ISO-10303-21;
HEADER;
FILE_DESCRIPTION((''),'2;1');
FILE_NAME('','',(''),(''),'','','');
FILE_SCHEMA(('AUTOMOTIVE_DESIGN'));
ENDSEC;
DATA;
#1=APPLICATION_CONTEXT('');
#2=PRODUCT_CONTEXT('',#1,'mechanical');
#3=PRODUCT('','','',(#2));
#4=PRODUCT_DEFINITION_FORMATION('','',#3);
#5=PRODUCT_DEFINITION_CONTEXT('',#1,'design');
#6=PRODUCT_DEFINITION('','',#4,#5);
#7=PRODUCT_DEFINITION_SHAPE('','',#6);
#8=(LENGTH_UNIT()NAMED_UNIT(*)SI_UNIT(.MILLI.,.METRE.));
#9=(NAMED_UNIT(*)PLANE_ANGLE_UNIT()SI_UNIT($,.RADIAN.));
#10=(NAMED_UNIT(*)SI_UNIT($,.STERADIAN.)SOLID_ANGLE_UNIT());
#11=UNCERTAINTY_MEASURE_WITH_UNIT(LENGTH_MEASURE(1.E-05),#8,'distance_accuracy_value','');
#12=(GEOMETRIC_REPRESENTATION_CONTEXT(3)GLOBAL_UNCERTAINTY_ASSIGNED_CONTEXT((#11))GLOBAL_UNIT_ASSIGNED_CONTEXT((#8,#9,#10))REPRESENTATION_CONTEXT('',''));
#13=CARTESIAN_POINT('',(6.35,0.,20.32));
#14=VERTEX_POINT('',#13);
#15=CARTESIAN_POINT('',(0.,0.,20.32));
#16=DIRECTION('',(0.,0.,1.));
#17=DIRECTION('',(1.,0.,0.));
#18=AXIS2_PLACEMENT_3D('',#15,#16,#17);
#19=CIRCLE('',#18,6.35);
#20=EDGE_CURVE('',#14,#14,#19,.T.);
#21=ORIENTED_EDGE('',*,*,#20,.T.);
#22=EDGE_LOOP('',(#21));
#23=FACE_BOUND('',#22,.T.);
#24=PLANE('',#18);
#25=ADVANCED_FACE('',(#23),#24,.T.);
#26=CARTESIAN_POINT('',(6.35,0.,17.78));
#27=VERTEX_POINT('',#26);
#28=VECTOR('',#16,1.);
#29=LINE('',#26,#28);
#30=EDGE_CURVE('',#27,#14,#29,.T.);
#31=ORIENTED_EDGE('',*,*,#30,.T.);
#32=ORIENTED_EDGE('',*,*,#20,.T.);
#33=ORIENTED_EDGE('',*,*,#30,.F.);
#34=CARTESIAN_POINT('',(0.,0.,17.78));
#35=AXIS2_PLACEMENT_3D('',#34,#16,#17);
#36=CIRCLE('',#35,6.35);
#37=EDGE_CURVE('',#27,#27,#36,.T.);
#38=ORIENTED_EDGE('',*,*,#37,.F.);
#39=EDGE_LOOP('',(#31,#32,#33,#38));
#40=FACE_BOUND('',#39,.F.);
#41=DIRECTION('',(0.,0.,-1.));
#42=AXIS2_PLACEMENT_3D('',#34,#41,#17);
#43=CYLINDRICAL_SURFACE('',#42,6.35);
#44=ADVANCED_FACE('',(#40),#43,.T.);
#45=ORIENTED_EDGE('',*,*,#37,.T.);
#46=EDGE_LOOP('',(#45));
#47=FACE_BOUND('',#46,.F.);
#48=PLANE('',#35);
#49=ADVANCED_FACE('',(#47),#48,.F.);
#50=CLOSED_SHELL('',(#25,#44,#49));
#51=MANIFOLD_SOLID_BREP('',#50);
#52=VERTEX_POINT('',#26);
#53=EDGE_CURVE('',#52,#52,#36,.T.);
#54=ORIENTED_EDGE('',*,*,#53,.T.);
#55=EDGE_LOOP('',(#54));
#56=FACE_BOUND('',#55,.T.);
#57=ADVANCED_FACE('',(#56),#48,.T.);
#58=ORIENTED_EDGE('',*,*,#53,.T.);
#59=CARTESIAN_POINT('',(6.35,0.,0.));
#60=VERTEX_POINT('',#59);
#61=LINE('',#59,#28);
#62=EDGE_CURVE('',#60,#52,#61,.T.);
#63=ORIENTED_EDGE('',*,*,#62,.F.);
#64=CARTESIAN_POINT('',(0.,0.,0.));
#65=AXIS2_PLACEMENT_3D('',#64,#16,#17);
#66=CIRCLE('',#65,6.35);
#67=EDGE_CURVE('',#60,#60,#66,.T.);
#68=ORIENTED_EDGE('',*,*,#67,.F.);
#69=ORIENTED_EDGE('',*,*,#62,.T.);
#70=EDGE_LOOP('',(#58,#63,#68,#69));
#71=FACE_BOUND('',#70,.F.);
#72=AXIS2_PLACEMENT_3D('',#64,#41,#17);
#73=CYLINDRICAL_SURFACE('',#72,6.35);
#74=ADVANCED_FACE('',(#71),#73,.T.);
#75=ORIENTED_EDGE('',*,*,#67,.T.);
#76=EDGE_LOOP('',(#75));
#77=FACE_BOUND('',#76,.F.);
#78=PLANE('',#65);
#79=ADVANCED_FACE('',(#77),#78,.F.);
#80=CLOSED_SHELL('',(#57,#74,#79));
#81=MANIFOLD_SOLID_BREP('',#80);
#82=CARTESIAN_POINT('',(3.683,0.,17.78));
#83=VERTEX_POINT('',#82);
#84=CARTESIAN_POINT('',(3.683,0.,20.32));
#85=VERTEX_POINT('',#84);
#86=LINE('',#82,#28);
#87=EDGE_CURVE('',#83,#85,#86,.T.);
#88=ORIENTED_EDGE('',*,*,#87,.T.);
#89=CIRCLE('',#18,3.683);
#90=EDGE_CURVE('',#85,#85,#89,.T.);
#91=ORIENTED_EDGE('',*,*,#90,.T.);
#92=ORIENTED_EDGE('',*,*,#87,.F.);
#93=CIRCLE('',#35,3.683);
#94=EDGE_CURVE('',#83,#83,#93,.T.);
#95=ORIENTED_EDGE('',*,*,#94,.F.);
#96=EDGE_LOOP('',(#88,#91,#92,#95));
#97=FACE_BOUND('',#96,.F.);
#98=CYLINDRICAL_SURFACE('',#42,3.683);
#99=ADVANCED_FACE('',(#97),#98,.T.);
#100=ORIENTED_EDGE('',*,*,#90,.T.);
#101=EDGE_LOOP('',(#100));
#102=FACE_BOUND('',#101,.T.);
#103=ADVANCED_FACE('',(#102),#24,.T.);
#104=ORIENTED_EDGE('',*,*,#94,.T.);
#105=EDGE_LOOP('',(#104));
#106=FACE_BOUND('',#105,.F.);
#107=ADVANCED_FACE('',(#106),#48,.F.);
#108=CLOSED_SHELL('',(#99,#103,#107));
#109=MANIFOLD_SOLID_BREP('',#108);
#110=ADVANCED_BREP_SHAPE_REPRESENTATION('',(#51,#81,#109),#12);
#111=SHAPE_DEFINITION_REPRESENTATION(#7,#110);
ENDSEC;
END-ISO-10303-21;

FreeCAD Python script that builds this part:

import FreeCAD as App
import Part
import Sketcher
Q = App.Units.Quantity

doc = App.newDocument("Part")
body = doc.addObject("PartDesign::Body", "Body")

# Sketch on XY plane
sketch1 = doc.addObject("Sketcher::SketchObject", "Sketch")
body.addObject(sketch1)
sketch1.AttachmentSupport = (doc.XY_Plane, [""])
sketch1.MapMode = "FlatFace"
sketch1.addGeometry(Part.Circle(App.Vector(0, 0, 0), App.Vector(0, 0, 1), 6.35), False)
sketch1.addConstraint(Sketcher.Constraint("Coincident", 0, 3, -1, 1))
sketch1.addConstraint(Sketcher.Constraint("Diameter", 0, Q("0.5 in")))
pad1 = doc.addObject("PartDesign::Pad", "Pad")
body.addObject(pad1)
pad1.Profile = sketch1
pad1.Length = Q("0.7 in")
body2 = doc.addObject("PartDesign::Body", "Body001")

# Sketch on XY plane
sketch2 = doc.addObject("Sketcher::SketchObject", "Sketch001")
body2.addObject(sketch2)
sketch2.AttachmentSupport = (doc.getObject("XY_Plane001"), [""])
sketch2.MapMode = "FlatFace"
sketch2.AttachmentOffset = App.Placement(App.Vector(0, 0, 0.7 * 25.4), App.Rotation())
sketch2.addGeometry(Part.Circle(App.Vector(0, 0, 0), App.Vector(0, 0, 1), 3.683), False)
sketch2.addConstraint(Sketcher.Constraint("Coincident", 0, 3, -1, 1))
sketch2.addConstraint(Sketcher.Constraint("Diameter", 0, Q("0.29 in")))
pad2 = doc.addObject("PartDesign::Pad", "Pad001")
body2.addObject(pad2)
pad2.Profile = sketch2
pad2.Length = Q("0.1 in")
body3 = doc.addObject("PartDesign::Body", "Body002")

# Sketch on XY plane
sketch3 = doc.addObject("Sketcher::SketchObject", "Sketch002")
body3.addObject(sketch3)
sketch3.AttachmentSupport = (doc.getObject("XY_Plane002"), [""])
sketch3.MapMode = "FlatFace"
sketch3.AttachmentOffset = App.Placement(App.Vector(0, 0, 0.7 * 25.4), App.Rotation())
sketch3.addGeometry(Part.Circle(App.Vector(0, 0, 0), App.Vector(0, 0, 1), 6.35), False)
sketch3.addConstraint(Sketcher.Constraint("Coincident", 0, 3, -1, 1))
sketch3.addConstraint(Sketcher.Constraint("Diameter", 0, Q("0.5 in")))
pad3 = doc.addObject("PartDesign::Pad", "Pad002")
body3.addObject(pad3)
pad3.Profile = sketch3
pad3.Length = Q("0.1 in")

doc.recompute()
